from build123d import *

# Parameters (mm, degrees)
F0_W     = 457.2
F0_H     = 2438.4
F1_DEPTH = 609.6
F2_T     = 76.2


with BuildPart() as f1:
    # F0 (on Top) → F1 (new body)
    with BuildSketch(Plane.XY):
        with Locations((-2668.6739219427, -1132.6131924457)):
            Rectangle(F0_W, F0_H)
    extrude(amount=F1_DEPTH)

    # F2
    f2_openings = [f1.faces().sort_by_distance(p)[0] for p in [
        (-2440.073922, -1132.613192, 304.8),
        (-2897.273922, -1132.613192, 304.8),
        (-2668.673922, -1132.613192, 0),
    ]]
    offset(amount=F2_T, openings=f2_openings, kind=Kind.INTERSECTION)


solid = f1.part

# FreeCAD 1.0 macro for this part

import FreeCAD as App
import Part
import Sketcher
from FreeCAD import Vector
Q = App.Units.Quantity


def faces_at(feature, points):
    """Names of the faces that lie closest to the given points."""
    faces = feature.Shape.Faces
    near = lambda p: min(range(len(faces)), key=lambda i: faces[i].distToShape(Part.Vertex(*p))[0])
    return sorted({f"Face{near(p) + 1}" for p in points})

doc = App.newDocument("Part")
body = doc.addObject("PartDesign::Body", "Body")

sketch1 = doc.addObject("Sketcher::SketchObject", "Sketch")
body.addObject(sketch1)
sketch1.AttachmentSupport = (doc.XY_Plane, [""])
sketch1.MapMode = "FlatFace"
sketch1.addGeometry([
    Part.LineSegment(Vector(-2897, 87, 0), Vector(-2897, -2352, 0)),
    Part.LineSegment(Vector(-2897, -2352, 0), Vector(-2440, -2352, 0)),
    Part.LineSegment(Vector(-2440, -2352, 0), Vector(-2440, 87, 0)),
    Part.LineSegment(Vector(-2440, 87, 0), Vector(-2897, 87, 0)),
], False)
sketch1.addConstraint([
    Sketcher.Constraint("Coincident", 0, 2, 1, 1),
    Sketcher.Constraint("Coincident", 1, 2, 2, 1),
    Sketcher.Constraint("Coincident", 2, 2, 3, 1),
    Sketcher.Constraint("Coincident", 3, 2, 0, 1),
    Sketcher.Constraint("Vertical", 0),
    Sketcher.Constraint("Horizontal", 1),
    Sketcher.Constraint("Vertical", 2),
    Sketcher.Constraint("Horizontal", 3),
    Sketcher.Constraint("DistanceX", 1, 1, 1, 2, Q("18 in")),
    Sketcher.Constraint("DistanceY", 0, 2, 0, 1, Q("96 in")),
    Sketcher.Constraint("DistanceX", 0, 2, -1, 1, Q("2897.273922 mm")),
    Sketcher.Constraint("DistanceY", 0, 2, -1, 1, Q("2351.813192 mm")),
])
pad1 = doc.addObject("PartDesign::Pad", "Pad")
body.addObject(pad1)
pad1.Profile = sketch1
pad1.Length = Q("24 in")
doc.recompute()

thickness = doc.addObject("PartDesign::Thickness", "Thickness")
body.addObject(thickness)
thickness.Base = (pad1, faces_at(pad1, [(-2440.074, -1132.613, 304.8), (-2897.274, -1132.613, 304.8), (-2668.674, -1132.613, 0)]))
thickness.Value = Q("3 in")
thickness.Reversed = False
thickness.Join = "Intersection"

doc.recompute()
